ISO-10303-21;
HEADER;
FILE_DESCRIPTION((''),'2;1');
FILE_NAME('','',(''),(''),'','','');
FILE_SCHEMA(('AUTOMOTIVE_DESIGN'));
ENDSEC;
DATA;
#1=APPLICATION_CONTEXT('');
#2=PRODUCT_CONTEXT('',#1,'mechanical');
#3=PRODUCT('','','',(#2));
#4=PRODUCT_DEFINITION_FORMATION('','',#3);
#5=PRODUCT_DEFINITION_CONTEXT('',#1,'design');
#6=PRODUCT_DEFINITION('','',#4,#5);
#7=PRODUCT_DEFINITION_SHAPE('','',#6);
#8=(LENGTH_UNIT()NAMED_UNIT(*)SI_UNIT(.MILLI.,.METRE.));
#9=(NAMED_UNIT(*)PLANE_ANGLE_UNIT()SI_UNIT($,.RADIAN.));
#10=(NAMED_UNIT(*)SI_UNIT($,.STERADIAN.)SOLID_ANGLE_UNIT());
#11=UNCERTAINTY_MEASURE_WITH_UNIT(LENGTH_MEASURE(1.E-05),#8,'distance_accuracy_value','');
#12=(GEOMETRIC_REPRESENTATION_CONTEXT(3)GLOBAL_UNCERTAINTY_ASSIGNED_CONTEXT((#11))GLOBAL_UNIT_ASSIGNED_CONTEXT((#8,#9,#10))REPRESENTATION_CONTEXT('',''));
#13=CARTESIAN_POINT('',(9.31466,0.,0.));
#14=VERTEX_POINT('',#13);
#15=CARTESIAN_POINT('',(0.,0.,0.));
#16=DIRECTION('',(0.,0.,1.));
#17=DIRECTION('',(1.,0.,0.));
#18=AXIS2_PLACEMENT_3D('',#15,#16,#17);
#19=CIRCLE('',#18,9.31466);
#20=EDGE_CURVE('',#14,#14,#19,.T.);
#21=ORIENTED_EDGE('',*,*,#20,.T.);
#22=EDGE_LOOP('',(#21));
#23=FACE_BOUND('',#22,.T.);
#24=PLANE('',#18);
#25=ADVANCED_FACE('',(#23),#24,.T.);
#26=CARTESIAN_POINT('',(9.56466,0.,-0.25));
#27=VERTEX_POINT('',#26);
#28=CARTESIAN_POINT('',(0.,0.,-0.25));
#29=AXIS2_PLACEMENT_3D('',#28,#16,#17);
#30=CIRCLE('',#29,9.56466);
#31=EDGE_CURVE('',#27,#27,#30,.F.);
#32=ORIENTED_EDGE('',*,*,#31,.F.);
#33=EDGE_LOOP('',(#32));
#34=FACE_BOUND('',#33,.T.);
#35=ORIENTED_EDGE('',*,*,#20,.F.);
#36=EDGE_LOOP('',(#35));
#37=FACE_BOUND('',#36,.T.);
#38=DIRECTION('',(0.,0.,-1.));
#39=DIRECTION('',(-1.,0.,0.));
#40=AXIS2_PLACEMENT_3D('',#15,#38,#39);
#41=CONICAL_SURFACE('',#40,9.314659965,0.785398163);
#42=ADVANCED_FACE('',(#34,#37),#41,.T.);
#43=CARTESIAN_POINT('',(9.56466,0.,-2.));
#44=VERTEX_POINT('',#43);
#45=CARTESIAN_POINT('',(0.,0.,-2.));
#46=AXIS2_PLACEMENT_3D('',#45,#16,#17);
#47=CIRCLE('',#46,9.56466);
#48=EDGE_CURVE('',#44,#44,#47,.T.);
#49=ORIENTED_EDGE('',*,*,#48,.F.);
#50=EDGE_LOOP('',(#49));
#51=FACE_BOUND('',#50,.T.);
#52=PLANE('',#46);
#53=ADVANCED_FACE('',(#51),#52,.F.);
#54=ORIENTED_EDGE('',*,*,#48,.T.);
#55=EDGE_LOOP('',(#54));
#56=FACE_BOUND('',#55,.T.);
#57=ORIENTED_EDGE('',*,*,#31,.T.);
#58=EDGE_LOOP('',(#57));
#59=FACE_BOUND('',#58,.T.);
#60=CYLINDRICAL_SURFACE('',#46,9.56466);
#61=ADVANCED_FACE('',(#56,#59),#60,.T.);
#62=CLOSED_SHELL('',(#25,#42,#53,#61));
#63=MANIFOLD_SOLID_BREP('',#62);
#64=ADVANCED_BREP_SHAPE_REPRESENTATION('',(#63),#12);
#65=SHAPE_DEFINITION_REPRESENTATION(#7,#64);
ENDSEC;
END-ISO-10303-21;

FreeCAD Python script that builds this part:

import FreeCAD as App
import Part
import Sketcher
Q = App.Units.Quantity


def edges_at(feature, points):
    """Names of the edges that pass closest to the given points."""
    edges = feature.Shape.Edges
    near = lambda p: min(range(len(edges)), key=lambda i: edges[i].distToShape(Part.Vertex(*p))[0])
    return sorted({f"Edge{near(p) + 1}" for p in points})

doc = App.newDocument("Part")
body = doc.addObject("PartDesign::Body", "Body")

# Sketch on XY plane
sketch1 = body.newObject("Sketcher::SketchObject", "Sketch")
sketch1.AttachmentSupport = (doc.getObject("XY_Plane"), [""])
sketch1.MapMode = "FlatFace"
sketch1.addGeometry(Part.Circle(App.Vector(0, 0, 0), App.Vector(0, 0, 1), 9.56466), False)
sketch1.addConstraint([
    Sketcher.Constraint("Coincident", 0, 3, -1, 1),
    Sketcher.Constraint("Diameter", 0, Q("19.12932 mm")),
])
pad1 = body.newObject("PartDesign::Pad", "Pad")
pad1.Profile = sketch1
pad1.Length = 2
pad1.Reversed = True
doc.recompute()

chamfer = body.newObject("PartDesign::Chamfer", "Chamfer")
chamfer.Base = (pad1, edges_at(pad1, [(-9.565, 0, 0)]))
chamfer.Size = 0.25

doc.recompute()
